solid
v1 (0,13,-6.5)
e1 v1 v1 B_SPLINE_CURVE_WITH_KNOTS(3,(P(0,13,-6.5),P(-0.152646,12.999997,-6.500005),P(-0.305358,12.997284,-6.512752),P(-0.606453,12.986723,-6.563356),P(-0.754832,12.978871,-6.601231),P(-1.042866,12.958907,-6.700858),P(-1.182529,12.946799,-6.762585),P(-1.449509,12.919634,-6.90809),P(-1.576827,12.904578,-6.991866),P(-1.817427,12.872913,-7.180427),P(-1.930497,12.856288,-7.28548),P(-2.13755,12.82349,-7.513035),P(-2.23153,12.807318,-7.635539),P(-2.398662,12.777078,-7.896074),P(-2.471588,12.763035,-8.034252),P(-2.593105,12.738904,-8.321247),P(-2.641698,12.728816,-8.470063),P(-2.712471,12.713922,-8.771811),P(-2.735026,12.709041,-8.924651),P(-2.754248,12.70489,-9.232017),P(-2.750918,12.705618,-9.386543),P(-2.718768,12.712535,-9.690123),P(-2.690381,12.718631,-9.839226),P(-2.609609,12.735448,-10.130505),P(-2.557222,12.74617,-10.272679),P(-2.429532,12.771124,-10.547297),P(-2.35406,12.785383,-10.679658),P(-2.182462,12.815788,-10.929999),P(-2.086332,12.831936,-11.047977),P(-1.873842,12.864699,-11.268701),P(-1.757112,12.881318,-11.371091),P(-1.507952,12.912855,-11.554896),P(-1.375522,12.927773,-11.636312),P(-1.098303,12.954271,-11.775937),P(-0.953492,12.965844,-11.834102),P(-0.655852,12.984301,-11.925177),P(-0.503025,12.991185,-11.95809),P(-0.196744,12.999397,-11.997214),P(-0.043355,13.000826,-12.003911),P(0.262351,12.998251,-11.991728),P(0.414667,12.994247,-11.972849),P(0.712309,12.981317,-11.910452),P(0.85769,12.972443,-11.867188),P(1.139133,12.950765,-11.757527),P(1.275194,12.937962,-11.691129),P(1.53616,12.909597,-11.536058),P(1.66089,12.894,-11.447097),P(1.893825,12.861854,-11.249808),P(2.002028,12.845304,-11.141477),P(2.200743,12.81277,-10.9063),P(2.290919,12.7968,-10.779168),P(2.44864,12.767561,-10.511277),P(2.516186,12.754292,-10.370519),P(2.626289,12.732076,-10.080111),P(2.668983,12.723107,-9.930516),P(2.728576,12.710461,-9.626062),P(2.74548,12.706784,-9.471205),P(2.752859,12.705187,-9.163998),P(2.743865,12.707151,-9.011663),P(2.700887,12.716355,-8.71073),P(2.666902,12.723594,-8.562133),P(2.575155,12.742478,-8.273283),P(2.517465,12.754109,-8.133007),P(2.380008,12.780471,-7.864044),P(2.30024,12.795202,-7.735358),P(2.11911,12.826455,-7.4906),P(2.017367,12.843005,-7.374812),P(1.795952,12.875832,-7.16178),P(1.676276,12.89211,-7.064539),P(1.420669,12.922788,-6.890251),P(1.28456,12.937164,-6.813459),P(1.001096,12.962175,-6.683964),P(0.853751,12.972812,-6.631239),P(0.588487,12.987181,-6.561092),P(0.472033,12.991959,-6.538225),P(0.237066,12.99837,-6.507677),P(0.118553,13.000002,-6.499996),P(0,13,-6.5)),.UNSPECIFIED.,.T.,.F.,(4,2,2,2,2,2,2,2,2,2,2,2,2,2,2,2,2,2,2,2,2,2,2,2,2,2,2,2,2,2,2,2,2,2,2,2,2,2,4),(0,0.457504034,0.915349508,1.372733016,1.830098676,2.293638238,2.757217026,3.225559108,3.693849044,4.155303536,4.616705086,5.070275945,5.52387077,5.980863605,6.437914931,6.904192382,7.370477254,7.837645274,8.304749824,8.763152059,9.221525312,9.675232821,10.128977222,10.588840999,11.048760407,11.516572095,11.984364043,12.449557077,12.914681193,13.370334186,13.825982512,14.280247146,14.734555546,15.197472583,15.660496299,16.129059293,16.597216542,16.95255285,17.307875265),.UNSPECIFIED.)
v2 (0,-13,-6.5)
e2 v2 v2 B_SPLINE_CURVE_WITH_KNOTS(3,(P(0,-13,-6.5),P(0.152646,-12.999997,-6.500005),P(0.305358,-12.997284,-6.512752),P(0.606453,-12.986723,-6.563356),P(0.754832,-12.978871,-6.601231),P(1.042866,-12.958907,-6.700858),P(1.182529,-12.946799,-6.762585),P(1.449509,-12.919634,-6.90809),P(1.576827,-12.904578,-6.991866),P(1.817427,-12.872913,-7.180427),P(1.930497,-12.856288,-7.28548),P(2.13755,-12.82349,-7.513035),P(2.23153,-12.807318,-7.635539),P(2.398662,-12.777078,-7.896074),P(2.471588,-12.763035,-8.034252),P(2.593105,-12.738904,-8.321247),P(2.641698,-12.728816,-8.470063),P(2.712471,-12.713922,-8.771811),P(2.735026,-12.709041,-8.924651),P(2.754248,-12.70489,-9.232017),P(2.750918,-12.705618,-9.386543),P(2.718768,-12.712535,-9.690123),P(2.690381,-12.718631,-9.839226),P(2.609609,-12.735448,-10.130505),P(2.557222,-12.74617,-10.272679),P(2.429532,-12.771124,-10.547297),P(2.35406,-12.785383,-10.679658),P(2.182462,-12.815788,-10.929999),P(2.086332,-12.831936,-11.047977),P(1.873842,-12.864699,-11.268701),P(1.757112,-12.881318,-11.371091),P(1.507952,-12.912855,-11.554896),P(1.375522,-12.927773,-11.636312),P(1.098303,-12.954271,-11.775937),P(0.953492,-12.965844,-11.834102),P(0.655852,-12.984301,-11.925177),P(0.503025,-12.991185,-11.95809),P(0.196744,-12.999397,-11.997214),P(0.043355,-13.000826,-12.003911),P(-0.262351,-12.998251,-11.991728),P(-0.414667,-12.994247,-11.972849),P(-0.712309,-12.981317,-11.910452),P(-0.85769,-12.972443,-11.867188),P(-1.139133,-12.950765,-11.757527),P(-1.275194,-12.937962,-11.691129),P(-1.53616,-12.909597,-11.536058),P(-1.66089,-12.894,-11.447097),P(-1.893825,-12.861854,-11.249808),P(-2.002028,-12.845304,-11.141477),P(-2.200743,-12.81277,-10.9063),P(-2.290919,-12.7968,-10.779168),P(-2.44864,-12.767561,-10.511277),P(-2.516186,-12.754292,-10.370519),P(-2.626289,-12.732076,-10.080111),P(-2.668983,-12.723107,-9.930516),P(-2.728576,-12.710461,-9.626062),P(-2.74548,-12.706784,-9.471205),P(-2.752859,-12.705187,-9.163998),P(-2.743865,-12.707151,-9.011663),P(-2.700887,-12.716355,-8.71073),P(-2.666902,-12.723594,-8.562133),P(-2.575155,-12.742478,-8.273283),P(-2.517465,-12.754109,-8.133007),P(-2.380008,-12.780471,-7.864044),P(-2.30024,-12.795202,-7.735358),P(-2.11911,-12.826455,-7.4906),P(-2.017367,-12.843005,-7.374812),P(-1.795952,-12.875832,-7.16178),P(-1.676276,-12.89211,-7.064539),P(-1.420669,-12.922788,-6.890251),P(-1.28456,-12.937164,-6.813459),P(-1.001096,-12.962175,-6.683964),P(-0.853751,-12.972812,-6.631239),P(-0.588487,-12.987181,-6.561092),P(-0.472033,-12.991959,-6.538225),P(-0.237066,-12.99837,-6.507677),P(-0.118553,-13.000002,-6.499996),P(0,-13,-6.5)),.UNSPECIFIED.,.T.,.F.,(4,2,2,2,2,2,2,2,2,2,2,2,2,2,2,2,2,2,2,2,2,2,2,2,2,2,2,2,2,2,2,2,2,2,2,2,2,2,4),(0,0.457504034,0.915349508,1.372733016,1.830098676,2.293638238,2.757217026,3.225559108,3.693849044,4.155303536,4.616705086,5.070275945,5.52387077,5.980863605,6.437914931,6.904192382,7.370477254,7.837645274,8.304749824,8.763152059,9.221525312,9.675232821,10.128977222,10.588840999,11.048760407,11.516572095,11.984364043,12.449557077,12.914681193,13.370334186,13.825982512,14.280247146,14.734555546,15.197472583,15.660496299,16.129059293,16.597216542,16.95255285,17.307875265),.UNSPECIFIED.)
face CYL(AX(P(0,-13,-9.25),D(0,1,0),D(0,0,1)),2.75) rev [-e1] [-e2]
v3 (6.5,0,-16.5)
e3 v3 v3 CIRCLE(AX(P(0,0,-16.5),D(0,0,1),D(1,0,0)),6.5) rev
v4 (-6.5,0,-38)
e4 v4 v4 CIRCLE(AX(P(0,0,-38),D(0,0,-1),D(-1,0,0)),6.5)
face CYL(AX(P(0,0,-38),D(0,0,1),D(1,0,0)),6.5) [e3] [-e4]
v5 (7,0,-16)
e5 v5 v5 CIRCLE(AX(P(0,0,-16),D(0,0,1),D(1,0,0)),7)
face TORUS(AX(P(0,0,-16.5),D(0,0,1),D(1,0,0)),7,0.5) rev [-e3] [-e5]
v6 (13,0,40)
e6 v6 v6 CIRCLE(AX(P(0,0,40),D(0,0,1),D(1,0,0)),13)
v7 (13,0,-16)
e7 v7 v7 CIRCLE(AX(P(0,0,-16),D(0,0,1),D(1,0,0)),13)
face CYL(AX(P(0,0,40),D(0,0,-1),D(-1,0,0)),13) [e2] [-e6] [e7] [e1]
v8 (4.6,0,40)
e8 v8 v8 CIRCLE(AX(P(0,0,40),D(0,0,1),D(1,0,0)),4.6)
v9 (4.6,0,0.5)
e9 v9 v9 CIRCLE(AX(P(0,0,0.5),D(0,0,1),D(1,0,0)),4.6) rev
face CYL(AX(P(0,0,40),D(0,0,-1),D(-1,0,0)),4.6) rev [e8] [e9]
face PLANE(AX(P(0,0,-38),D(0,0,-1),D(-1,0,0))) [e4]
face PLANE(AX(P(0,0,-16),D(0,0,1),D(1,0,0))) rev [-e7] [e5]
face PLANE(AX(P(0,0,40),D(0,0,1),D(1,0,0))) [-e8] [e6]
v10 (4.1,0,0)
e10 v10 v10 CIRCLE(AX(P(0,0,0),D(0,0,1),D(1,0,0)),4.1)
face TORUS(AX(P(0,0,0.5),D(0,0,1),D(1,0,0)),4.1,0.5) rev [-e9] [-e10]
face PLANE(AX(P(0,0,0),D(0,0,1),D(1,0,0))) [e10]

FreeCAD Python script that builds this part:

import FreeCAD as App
import Part
import Sketcher

V = App.Vector
Q = App.Units.Quantity


def edges_at(feature, points):
    """Names of the edges that pass closest to the given points."""
    edges = feature.Shape.Edges
    near = lambda p: min(range(len(edges)), key=lambda i: edges[i].distToShape(Part.Vertex(*p))[0])
    return sorted({f"Edge{near(p) + 1}" for p in points})

doc = App.newDocument("Part")
body = doc.addObject("PartDesign::Body", "Body")

# Sketch on XY plane
sketch1 = doc.addObject("Sketcher::SketchObject", "Sketch")
body.addObject(sketch1)
sketch1.AttachmentSupport = (doc.XY_Plane, [""])
sketch1.MapMode = "FlatFace"
sketch1.addGeometry(Part.Circle(V(0, 0, 0), V(0, 0, 1), 13), False)
sketch1.addGeometry(Part.Circle(V(0, 0, 0), V(0, 0, 1), 4.6), False)
sketch1.addConstraint(Sketcher.Constraint("Coincident", 0, 3, -1, 1))
sketch1.addConstraint(Sketcher.Constraint("Coincident", 1, 3, -1, 1))
sketch1.addConstraint(Sketcher.Constraint("Diameter", 0, Q("26 mm")))
sketch1.addConstraint(Sketcher.Constraint("Diameter", 1, Q("9.2 mm")))
pad1 = doc.addObject("PartDesign::Pad", "Pad")
body.addObject(pad1)
pad1.Profile = sketch1
pad1.Length = 40

# Sketch on XY plane
sketch2 = doc.addObject("Sketcher::SketchObject", "Sketch001")
body.addObject(sketch2)
sketch2.AttachmentSupport = (doc.XY_Plane, [""])
sketch2.MapMode = "FlatFace"
sketch2.addGeometry(Part.Circle(V(0, 0, 0), V(0, 0, 1), 13), False)
sketch2.addConstraint(Sketcher.Constraint("Coincident", 0, 3, -1, 1))
sketch2.addConstraint(Sketcher.Constraint("Diameter", 0, Q("26 mm")))
pad2 = doc.addObject("PartDesign::Pad", "Pad001")
body.addObject(pad2)
pad2.Profile = sketch2
pad2.Length = 16
pad2.Reversed = True

# Sketch on XY plane
sketch3 = doc.addObject("Sketcher::SketchObject", "Sketch002")
body.addObject(sketch3)
sketch3.AttachmentSupport = (doc.XY_Plane, [""])
sketch3.MapMode = "FlatFace"
sketch3.AttachmentOffset = App.Placement(V(0, 0, -16), App.Rotation())
sketch3.addGeometry(Part.Circle(V(0, 0, 0), V(0, 0, 1), 6.5), False)
sketch3.addConstraint(Sketcher.Constraint("Coincident", 0, 3, -1, 1))
sketch3.addConstraint(Sketcher.Constraint("Diameter", 0, Q("13 mm")))
pad3 = doc.addObject("PartDesign::Pad", "Pad002")
body.addObject(pad3)
pad3.Profile = sketch3
pad3.Length = 22
pad3.Reversed = True
doc.recompute()

fillet = doc.addObject("PartDesign::Fillet", "Fillet")
body.addObject(fillet)
fillet.Base = (pad3, edges_at(pad3, [(6.5, 0, -16)]))
fillet.Radius = 0.5
doc.recompute()

fillet2 = doc.addObject("PartDesign::Fillet", "Fillet001")
body.addObject(fillet2)
fillet2.Base = (fillet, edges_at(fillet, [(-4.6, 0, 0)]))
fillet2.Radius = 0.5

# Sketch on XZ plane
sketch4 = doc.addObject("Sketcher::SketchObject", "Sketch003")
body.addObject(sketch4)
sketch4.AttachmentSupport = (doc.XZ_Plane, [""])
sketch4.MapMode = "FlatFace"
sketch4.addGeometry(Part.Circle(V(0, -9.25, 0), V(0, 0, 1), 2.75), False)
sketch4.addConstraint(Sketcher.Constraint("PointOnObject", 0, 3, -2))
sketch4.addConstraint(Sketcher.Constraint("Diameter", 0, Q("5.5 mm")))
sketch4.addConstraint(Sketcher.Constraint("DistanceY", 0, 3, -1, 1, Q("9.25 mm")))
pocket1 = doc.addObject("PartDesign::Pocket", "Pocket")
body.addObject(pocket1)
pocket1.Profile = sketch4
pocket1.Type = "ThroughAll"
pocket1.Midplane = True

doc.recompute()
